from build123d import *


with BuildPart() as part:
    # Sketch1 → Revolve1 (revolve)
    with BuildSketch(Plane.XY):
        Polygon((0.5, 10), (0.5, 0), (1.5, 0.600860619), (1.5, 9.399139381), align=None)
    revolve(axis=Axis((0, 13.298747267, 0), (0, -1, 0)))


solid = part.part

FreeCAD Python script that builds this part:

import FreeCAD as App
import Part
import Sketcher
from FreeCAD import Vector
Q = App.Units.Quantity

doc = App.newDocument("Part")
params = doc.addObject("Spreadsheet::Sheet", "Params")
for row, (alias, value) in enumerate([
    ("sketch1_height", "10 mm"),
    ("revolution_angle", "360 deg"),
], start=1):
    params.set(f"A{row}", alias)
    params.set(f"B{row}", "=" + value)
    params.setAlias(f"B{row}", alias)

body = doc.addObject("PartDesign::Body", "Body")

sketch1 = body.newObject("Sketcher::SketchObject", "Sketch")
sketch1.AttachmentSupport = (doc.getObject("XY_Plane"), [""])
sketch1.MapMode = "FlatFace"
sketch1.addGeometry(Part.LineSegment(Vector(0.5, 10, 0), Vector(0.5, 0, 0)), False)
sketch1.addGeometry(Part.LineSegment(Vector(0.5, 0, 0), Vector(1.5, 0.6, 0)), False)
sketch1.addGeometry(Part.LineSegment(Vector(1.5, 0.6, 0), Vector(1.5, 9.4, 0)), False)
sketch1.addGeometry(Part.LineSegment(Vector(1.5, 9.4, 0), Vector(0.5, 10, 0)), False)
sketch1.addConstraint(Sketcher.Constraint("Coincident", 0, 2, 1, 1))
sketch1.addConstraint(Sketcher.Constraint("Coincident", 1, 2, 2, 1))
sketch1.addConstraint(Sketcher.Constraint("Coincident", 2, 2, 3, 1))
sketch1.addConstraint(Sketcher.Constraint("Coincident", 3, 2, 0, 1))
sketch1.addConstraint(Sketcher.Constraint("Vertical", 0))
sketch1.addConstraint(Sketcher.Constraint("Vertical", 2))
sketch1.addConstraint(Sketcher.Constraint("PointOnObject", 0, 2, -1))
sketch1.addConstraint(Sketcher.Constraint("Equal", 1, 3))
sketch1.addConstraint(Sketcher.Constraint("DistanceY", 0, 2, 0, 1, Q("10 mm")))
sketch1.addConstraint(Sketcher.Constraint("Angle", 1, Q("31 deg")))
sketch1.addConstraint(Sketcher.Constraint("DistanceX", 0, 2, 1, 2, Q("1 mm")))
sketch1.addConstraint(Sketcher.Constraint("DistanceX", -1, 1, 0, 2, Q("0.5 mm")))
sketch1.setExpression("Constraints[8]", "Params.sketch1_height")
revolution = body.newObject("PartDesign::Revolution", "Revolution")
revolution.Profile = sketch1
revolution.ReferenceAxis = (sketch1, ["V_Axis"])
revolution.setExpression("Angle", "Params.revolution_angle")

doc.recompute()
